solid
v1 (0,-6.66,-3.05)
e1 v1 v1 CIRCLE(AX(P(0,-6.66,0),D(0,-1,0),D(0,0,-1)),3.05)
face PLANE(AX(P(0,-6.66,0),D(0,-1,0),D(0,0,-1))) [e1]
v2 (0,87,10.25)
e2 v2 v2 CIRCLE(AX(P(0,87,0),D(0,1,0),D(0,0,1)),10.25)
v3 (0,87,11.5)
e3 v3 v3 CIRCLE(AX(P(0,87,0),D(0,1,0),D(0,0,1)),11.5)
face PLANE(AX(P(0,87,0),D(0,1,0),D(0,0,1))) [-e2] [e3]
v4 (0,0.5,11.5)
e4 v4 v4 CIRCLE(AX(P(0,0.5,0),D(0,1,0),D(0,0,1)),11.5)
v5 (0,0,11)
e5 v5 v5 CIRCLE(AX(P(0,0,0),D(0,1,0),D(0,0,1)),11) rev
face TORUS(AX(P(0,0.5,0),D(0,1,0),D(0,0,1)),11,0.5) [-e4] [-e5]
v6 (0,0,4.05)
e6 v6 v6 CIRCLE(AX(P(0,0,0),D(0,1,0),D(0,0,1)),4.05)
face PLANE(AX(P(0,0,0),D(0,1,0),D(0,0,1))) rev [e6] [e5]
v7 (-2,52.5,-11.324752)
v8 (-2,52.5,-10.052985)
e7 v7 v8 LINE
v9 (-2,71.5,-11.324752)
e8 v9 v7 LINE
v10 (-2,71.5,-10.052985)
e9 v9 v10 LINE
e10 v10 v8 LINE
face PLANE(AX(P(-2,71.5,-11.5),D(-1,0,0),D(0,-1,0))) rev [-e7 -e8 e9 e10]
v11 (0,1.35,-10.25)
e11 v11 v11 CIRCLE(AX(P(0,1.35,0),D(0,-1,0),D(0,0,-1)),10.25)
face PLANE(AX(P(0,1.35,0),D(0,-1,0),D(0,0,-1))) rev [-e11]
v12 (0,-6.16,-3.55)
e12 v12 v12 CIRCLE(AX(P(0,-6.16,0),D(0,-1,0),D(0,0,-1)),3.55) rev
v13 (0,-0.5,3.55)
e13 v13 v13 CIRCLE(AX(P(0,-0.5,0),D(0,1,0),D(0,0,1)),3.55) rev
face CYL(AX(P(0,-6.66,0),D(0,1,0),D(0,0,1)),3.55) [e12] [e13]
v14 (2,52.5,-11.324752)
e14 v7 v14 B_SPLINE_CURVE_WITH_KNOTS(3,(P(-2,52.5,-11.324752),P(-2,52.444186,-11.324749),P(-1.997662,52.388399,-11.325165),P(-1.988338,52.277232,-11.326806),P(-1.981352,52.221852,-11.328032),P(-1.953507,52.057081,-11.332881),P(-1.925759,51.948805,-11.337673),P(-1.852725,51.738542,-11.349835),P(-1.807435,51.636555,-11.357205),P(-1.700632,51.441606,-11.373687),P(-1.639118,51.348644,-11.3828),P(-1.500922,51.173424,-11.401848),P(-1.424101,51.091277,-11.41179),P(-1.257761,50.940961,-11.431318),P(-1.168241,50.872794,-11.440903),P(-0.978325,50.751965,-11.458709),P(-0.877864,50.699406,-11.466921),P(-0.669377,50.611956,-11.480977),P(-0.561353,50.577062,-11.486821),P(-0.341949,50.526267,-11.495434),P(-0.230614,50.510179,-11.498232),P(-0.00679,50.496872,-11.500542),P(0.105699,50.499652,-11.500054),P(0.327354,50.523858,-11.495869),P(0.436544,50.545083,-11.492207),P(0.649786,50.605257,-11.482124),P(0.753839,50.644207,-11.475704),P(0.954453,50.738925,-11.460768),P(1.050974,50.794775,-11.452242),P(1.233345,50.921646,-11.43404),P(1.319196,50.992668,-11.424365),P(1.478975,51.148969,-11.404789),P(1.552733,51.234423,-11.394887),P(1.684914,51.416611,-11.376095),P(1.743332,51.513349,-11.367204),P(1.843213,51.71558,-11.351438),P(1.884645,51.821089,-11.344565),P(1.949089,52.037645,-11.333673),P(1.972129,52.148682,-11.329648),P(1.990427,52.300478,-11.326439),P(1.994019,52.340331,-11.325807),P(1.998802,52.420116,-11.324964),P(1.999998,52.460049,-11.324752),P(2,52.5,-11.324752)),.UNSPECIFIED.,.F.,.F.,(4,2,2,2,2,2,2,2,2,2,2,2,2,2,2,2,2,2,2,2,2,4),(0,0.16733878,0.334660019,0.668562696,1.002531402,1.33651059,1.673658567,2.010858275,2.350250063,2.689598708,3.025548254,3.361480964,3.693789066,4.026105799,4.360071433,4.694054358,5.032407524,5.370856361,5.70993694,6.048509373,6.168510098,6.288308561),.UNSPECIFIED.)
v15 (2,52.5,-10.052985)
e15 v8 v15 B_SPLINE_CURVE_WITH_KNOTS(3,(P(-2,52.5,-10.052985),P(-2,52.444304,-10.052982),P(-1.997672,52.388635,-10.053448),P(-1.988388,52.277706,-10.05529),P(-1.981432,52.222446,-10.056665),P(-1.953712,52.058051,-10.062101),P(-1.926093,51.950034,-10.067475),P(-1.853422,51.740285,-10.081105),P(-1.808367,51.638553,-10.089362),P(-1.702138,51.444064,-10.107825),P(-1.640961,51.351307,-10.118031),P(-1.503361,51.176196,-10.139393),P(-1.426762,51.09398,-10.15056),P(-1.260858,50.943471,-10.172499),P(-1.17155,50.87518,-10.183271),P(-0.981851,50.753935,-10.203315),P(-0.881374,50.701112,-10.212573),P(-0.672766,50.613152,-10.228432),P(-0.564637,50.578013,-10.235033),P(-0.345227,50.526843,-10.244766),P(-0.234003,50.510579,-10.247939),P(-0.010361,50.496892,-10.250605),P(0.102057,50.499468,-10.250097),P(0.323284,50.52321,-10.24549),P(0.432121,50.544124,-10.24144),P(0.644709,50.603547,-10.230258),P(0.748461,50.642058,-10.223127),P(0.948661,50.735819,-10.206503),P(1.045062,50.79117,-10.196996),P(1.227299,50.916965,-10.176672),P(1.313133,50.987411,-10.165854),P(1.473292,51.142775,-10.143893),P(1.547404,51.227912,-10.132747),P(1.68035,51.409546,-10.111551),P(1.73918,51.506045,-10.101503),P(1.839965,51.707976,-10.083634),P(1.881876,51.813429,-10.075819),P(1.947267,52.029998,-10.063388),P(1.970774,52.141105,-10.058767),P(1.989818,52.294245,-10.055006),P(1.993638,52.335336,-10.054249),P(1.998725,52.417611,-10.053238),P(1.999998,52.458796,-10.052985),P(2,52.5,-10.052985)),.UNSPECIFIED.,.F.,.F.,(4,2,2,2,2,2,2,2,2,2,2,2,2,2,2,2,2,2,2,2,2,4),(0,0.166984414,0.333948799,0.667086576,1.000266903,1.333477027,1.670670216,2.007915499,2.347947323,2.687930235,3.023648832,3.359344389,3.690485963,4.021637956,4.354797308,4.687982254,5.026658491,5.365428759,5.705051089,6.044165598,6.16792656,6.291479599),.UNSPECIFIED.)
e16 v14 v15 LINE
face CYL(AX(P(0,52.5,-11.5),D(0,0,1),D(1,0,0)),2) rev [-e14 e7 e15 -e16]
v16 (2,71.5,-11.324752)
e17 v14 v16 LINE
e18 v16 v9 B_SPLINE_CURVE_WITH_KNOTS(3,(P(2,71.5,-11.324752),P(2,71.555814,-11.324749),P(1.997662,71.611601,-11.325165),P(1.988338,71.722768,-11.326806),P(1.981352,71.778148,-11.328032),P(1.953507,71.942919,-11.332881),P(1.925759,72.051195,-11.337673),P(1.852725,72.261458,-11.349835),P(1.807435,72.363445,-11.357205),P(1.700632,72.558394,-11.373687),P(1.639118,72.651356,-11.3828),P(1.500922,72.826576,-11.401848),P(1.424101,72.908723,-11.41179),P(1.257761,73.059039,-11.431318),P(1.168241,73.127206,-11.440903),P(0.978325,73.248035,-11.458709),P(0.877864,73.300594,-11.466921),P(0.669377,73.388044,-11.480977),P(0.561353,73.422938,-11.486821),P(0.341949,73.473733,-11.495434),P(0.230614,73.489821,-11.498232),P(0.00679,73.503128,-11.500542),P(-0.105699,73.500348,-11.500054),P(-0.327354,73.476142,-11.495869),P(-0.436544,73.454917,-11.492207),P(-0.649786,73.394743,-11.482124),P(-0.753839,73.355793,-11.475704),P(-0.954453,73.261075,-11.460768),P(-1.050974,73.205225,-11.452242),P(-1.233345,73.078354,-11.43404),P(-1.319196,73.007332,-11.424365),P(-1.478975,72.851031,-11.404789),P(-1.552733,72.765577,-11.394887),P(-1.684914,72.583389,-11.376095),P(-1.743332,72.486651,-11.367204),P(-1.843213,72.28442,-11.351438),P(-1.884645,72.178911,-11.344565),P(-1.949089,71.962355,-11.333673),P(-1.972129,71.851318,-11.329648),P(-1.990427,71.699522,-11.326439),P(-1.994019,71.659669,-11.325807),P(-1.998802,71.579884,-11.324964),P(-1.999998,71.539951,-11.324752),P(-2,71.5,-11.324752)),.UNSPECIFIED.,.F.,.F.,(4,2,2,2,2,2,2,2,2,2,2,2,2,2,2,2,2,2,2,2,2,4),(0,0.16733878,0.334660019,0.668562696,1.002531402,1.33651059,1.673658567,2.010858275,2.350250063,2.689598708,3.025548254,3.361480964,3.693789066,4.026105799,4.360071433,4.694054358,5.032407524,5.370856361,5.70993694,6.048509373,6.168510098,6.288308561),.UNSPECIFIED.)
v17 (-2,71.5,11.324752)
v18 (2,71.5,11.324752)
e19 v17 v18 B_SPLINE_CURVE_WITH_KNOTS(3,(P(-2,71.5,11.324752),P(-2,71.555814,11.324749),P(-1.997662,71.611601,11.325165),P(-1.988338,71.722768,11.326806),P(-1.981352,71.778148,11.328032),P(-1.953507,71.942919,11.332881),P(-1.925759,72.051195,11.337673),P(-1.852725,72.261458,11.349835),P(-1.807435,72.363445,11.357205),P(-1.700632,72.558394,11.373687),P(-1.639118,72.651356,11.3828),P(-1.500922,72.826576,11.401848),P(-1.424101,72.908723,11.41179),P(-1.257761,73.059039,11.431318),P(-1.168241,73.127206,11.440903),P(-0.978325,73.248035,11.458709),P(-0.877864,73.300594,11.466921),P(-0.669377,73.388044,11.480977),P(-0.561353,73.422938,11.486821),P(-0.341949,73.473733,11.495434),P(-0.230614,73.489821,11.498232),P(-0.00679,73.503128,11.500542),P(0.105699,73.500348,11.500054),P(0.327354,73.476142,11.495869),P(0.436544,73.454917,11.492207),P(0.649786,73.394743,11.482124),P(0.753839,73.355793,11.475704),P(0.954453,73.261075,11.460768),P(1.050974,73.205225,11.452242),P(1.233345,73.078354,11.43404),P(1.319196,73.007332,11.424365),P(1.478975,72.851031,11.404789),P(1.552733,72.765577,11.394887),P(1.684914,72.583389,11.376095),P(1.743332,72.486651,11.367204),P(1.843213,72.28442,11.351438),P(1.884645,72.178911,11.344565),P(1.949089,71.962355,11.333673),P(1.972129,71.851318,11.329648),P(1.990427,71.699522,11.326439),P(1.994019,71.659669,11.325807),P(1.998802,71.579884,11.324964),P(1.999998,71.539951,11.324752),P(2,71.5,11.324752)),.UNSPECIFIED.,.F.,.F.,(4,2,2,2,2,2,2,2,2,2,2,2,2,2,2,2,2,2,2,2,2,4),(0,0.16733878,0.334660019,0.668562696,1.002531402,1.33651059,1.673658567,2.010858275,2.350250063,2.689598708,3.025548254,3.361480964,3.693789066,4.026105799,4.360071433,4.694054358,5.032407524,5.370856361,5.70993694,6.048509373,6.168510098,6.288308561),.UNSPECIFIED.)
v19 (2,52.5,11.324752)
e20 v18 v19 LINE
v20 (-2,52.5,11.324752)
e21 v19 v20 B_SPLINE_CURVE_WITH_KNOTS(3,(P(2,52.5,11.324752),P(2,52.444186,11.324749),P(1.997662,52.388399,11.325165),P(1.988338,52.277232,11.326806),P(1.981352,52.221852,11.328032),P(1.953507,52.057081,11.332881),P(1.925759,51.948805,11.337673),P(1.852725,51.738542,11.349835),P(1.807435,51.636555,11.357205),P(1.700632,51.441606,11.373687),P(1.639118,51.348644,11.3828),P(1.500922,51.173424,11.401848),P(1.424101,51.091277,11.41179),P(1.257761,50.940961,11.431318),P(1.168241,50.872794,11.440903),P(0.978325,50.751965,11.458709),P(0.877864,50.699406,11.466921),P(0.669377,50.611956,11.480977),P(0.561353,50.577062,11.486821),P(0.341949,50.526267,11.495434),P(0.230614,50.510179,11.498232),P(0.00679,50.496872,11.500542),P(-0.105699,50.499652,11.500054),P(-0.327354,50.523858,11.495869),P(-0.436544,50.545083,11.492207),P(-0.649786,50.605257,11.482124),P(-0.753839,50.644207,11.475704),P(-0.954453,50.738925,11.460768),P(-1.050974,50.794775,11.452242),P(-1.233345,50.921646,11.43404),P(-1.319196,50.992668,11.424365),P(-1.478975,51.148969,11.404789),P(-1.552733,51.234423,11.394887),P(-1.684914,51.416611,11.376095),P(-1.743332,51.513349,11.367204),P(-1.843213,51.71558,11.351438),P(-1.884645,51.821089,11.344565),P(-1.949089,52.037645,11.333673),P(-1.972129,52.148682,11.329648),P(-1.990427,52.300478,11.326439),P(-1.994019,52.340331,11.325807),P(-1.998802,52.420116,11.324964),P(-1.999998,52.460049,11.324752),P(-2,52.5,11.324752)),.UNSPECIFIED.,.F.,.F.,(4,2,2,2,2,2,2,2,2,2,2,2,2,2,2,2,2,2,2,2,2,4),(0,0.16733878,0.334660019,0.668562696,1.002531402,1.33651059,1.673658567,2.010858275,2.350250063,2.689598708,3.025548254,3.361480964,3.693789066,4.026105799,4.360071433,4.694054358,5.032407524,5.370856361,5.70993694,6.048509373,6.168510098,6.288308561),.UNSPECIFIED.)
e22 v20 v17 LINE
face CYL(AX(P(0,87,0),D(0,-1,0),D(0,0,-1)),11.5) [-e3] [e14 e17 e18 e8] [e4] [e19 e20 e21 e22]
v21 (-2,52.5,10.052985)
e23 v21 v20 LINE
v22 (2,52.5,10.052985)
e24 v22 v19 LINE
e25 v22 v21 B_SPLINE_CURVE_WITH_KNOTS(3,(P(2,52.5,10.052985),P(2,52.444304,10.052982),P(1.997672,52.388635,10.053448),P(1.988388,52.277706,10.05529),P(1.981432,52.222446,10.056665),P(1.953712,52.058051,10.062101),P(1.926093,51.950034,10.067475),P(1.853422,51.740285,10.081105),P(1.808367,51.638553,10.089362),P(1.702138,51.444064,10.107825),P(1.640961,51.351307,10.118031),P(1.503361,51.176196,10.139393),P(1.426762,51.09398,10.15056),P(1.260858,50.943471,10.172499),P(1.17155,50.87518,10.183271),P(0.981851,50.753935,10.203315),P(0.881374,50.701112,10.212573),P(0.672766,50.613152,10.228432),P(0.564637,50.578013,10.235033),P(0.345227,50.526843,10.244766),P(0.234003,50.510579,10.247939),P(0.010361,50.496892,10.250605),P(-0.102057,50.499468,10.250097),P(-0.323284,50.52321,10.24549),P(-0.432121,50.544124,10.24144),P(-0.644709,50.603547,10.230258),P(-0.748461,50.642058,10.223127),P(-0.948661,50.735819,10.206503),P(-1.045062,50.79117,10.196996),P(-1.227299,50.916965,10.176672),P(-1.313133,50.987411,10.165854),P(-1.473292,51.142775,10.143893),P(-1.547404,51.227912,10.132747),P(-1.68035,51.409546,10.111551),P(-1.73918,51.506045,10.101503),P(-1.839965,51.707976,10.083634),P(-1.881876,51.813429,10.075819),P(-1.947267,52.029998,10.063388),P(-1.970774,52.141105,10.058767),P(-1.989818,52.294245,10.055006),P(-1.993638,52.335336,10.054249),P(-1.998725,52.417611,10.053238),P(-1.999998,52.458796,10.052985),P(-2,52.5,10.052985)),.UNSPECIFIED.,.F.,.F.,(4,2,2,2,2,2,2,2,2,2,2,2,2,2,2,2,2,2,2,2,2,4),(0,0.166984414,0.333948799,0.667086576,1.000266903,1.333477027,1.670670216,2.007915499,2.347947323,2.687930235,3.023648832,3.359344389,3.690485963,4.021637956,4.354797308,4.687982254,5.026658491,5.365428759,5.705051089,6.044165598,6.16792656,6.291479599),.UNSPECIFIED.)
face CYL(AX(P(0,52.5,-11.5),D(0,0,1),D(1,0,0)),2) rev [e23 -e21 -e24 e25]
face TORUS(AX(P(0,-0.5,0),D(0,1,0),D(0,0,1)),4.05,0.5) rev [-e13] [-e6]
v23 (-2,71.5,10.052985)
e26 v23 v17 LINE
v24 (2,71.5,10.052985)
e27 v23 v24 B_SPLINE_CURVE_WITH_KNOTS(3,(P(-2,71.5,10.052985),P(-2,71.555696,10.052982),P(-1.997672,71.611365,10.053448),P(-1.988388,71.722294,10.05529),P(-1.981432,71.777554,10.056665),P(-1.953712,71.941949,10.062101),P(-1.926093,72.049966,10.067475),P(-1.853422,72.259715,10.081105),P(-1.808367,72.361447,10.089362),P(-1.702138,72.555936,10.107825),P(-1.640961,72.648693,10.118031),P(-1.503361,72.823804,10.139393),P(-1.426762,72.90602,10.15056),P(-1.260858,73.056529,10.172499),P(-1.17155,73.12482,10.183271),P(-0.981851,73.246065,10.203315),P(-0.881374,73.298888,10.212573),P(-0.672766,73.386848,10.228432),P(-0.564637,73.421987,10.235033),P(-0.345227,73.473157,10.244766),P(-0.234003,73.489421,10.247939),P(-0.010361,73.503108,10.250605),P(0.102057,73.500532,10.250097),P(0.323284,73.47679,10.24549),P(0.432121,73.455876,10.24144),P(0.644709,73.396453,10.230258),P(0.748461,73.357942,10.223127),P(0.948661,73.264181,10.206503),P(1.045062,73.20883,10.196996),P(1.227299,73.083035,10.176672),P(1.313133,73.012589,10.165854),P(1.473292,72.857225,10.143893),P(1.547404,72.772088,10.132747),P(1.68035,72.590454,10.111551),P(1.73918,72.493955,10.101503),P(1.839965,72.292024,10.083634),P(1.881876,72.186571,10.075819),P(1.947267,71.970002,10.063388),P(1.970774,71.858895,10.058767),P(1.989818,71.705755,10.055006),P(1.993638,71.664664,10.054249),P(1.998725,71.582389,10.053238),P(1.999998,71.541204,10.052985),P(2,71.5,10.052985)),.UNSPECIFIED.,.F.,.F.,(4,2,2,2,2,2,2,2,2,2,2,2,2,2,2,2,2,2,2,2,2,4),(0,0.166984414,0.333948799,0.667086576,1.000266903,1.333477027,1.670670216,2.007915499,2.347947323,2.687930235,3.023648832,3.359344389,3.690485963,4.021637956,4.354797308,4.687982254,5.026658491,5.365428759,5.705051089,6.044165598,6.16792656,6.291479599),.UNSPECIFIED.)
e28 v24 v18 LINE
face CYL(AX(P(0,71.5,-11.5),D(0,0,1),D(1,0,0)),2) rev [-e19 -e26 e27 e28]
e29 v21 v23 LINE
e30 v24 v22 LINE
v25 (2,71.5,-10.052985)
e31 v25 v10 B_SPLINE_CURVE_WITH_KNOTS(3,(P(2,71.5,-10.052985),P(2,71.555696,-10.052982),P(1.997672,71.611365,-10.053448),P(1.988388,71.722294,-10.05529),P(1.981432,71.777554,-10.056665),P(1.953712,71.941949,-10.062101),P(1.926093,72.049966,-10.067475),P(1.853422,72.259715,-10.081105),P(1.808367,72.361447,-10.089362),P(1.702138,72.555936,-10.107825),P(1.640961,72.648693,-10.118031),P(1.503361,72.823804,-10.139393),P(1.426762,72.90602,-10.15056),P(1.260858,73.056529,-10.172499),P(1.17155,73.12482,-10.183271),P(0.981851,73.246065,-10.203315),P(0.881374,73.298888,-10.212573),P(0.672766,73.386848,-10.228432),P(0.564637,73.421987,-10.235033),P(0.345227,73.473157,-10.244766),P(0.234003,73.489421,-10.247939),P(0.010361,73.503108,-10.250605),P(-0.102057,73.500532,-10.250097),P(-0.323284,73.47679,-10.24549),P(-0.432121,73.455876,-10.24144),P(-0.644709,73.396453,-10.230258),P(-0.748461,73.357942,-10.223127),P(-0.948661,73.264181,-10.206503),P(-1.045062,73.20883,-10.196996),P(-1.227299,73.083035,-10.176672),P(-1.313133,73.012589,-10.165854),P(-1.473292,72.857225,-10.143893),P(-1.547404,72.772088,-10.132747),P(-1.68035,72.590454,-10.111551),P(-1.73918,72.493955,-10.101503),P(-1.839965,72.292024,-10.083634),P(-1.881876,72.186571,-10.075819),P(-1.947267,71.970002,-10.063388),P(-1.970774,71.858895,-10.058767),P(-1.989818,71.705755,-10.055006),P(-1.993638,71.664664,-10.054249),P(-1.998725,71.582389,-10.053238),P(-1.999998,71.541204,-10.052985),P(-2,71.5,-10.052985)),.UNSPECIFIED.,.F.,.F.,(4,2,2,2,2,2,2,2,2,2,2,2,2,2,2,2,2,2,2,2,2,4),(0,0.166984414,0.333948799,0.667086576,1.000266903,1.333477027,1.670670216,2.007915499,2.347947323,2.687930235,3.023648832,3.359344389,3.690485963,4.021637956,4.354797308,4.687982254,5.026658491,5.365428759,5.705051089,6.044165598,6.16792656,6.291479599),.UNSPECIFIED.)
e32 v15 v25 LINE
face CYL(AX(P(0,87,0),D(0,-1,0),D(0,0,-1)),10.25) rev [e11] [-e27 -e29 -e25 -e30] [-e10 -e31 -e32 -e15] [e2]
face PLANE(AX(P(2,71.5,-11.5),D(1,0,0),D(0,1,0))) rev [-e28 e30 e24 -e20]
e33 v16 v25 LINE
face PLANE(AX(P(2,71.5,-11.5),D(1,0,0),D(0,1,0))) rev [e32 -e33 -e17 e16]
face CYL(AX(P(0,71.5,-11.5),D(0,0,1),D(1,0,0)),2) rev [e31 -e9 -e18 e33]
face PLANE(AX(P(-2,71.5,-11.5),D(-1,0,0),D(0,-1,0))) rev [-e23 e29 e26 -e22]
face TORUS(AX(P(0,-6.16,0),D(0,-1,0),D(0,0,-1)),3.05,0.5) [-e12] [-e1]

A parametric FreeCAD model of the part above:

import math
import FreeCAD as App
import Part
import Sketcher
Q = App.Units.Quantity


def edges_at(feature, points):
    """Names of the edges that pass closest to the given points."""
    edges = feature.Shape.Edges
    near = lambda p: min(range(len(edges)), key=lambda i: edges[i].distToShape(Part.Vertex(*p))[0])
    return sorted({f"Edge{near(p) + 1}" for p in points})

doc = App.newDocument("Part")
body = doc.addObject("PartDesign::Body", "Body")

# Sketch on XZ plane
sketch1 = doc.addObject("Sketcher::SketchObject", "Sketch")
body.addObject(sketch1)
sketch1.AttachmentSupport = (doc.XZ_Plane, [""])
sketch1.MapMode = "FlatFace"
sketch1.addGeometry([
    Part.Circle(App.Vector(0, 0, 0), App.Vector(0, 0, 1), 11.5),
    Part.Circle(App.Vector(0, 0, 0), App.Vector(0, 0, 1), 10.25),
], False)
sketch1.addConstraint([
    Sketcher.Constraint("Coincident", 0, 3, -1, 1),
    Sketcher.Constraint("Coincident", 1, 3, -1, 1),
    Sketcher.Constraint("Diameter", 0, Q("23 mm")),
    Sketcher.Constraint("Diameter", 1, Q("20.5 mm")),
])
pad1 = doc.addObject("PartDesign::Pad", "Pad")
body.addObject(pad1)
pad1.Profile = sketch1
pad1.Length = 87
pad1.Reversed = True

# Sketch on XZ plane
sketch2 = doc.addObject("Sketcher::SketchObject", "Sketch001")
body.addObject(sketch2)
sketch2.AttachmentSupport = (doc.XZ_Plane, [""])
sketch2.MapMode = "FlatFace"
sketch2.addGeometry(Part.Circle(App.Vector(0, 0, 0), App.Vector(0, 0, 1), 10.25), False)
sketch2.addConstraint([
    Sketcher.Constraint("Coincident", 0, 3, -1, 1),
    Sketcher.Constraint("Diameter", 0, Q("20.5 mm")),
])
pad2 = doc.addObject("PartDesign::Pad", "Pad001")
body.addObject(pad2)
pad2.Profile = sketch2
pad2.Length = 1.35
pad2.Reversed = True

# Sketch on XZ plane
sketch3 = doc.addObject("Sketcher::SketchObject", "Sketch002")
body.addObject(sketch3)
sketch3.AttachmentSupport = (doc.XZ_Plane, [""])
sketch3.MapMode = "FlatFace"
sketch3.addGeometry(Part.Circle(App.Vector(0, 0, 0), App.Vector(0, 0, 1), 3.55), False)
sketch3.addConstraint([
    Sketcher.Constraint("Coincident", 0, 3, -1, 1),
    Sketcher.Constraint("Diameter", 0, Q("7.1 mm")),
])
pad3 = doc.addObject("PartDesign::Pad", "Pad002")
body.addObject(pad3)
pad3.Profile = sketch3
pad3.Length = 6.66

# Sketch on XY plane
sketch4 = doc.addObject("Sketcher::SketchObject", "Sketch003")
body.addObject(sketch4)
sketch4.AttachmentSupport = (doc.XY_Plane, [""])
sketch4.MapMode = "FlatFace"
sketch4.addGeometry([
    Part.LineSegment(App.Vector(-2, 71.5, 0), App.Vector(-2, 52.5, 0)),
    Part.ArcOfCircle(Part.Circle(App.Vector(0, 52.5, 0), App.Vector(0, 0, 1), 2), math.radians(180), math.radians(360)),
    Part.LineSegment(App.Vector(2, 52.5, 0), App.Vector(2, 71.5, 0)),
    Part.ArcOfCircle(Part.Circle(App.Vector(0, 71.5, 0), App.Vector(0, 0, 1), 2), math.radians(0), math.radians(180)),
], False)
sketch4.addConstraint([
    Sketcher.Constraint("Tangent", 0, 2, 1, 1),
    Sketcher.Constraint("Tangent", 1, 2, 2, 1),
    Sketcher.Constraint("Tangent", 2, 2, 3, 1),
    Sketcher.Constraint("Tangent", 3, 2, 0, 1),
    Sketcher.Constraint("Vertical", 0),
    Sketcher.Constraint("Vertical", 2),
    Sketcher.Constraint("PointOnObject", 1, 3, -2),
    Sketcher.Constraint("Radius", 1, Q("2 mm")),
    Sketcher.Constraint("DistanceY", 0, 2, 0, 1, Q("19 mm")),
    Sketcher.Constraint("DistanceY", -1, 1, 1, 3, Q("52.5 mm")),
])
pocket1 = doc.addObject("PartDesign::Pocket", "Pocket")
body.addObject(pocket1)
pocket1.Profile = sketch4
pocket1.Type = "ThroughAll"
pocket1.Midplane = True
doc.recompute()

fillet = doc.addObject("PartDesign::Fillet", "Fillet")
body.addObject(fillet)
fillet.Base = (pocket1, edges_at(pocket1, [(-3.55, 0, 0), (-3.55, -6.66, 0), (-11.5, 0, 0)]))
fillet.Radius = 0.5

doc.recompute()
